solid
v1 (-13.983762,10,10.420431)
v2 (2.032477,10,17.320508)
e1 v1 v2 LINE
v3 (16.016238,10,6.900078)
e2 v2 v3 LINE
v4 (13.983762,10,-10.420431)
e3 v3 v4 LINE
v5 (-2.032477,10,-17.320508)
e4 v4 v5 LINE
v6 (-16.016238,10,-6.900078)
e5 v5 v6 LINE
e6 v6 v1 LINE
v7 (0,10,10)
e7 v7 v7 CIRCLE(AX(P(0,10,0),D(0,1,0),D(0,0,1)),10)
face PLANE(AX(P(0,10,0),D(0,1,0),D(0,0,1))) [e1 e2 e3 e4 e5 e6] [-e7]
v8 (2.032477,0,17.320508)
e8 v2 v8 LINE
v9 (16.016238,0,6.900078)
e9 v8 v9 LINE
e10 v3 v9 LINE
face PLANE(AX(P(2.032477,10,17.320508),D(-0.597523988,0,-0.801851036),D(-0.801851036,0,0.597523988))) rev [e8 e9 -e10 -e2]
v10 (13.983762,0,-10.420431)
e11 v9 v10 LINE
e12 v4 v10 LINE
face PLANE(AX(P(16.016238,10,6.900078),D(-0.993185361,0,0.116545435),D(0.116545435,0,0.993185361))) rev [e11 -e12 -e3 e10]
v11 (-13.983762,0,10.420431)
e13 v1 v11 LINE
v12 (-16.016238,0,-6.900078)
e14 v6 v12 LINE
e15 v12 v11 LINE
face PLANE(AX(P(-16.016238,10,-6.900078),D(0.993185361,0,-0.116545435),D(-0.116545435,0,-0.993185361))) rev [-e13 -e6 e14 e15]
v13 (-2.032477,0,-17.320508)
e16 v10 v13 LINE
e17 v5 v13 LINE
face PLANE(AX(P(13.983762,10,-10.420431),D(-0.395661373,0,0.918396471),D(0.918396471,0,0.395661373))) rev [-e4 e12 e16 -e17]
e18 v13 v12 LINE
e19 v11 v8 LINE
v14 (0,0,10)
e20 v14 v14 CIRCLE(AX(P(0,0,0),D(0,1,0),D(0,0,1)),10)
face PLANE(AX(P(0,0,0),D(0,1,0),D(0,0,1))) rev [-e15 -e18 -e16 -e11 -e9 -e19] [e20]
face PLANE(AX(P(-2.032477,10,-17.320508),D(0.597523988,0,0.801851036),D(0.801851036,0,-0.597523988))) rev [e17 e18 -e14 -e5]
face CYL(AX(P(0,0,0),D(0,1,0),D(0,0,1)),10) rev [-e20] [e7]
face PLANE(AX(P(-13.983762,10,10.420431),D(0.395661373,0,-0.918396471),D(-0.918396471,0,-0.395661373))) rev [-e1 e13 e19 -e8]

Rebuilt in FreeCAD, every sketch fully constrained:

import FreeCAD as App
import Part
import Sketcher

doc = App.newDocument("Part")
body = doc.addObject("PartDesign::Body", "Body")

# Sketch on XZ plane
sketch1 = doc.addObject("Sketcher::SketchObject", "Sketch")
body.addObject(sketch1)
sketch1.AttachmentSupport = (doc.XZ_Plane, [""])
sketch1.MapMode = "FlatFace"
sketch1.addGeometry(Part.LineSegment(App.Vector(-16, -7, 0), App.Vector(-14, 10, 0)), False)
sketch1.addGeometry(Part.LineSegment(App.Vector(-14, 10, 0), App.Vector(2, 17, 0)), False)
sketch1.addGeometry(Part.LineSegment(App.Vector(2, 17, 0), App.Vector(16, 7, 0)), False)
sketch1.addGeometry(Part.LineSegment(App.Vector(16, 7, 0), App.Vector(14, -10, 0)), False)
sketch1.addGeometry(Part.LineSegment(App.Vector(14, -10, 0), App.Vector(-2, -17, 0)), False)
sketch1.addGeometry(Part.LineSegment(App.Vector(-2, -17, 0), App.Vector(-16, -7, 0)), False)
sketch1.addConstraint(Sketcher.Constraint("Coincident", 0, 2, 1, 1))
sketch1.addConstraint(Sketcher.Constraint("Coincident", 1, 2, 2, 1))
sketch1.addConstraint(Sketcher.Constraint("Coincident", 2, 2, 3, 1))
sketch1.addConstraint(Sketcher.Constraint("Coincident", 3, 2, 4, 1))
sketch1.addConstraint(Sketcher.Constraint("Coincident", 4, 2, 5, 1))
sketch1.addConstraint(Sketcher.Constraint("Coincident", 5, 2, 0, 1))
sketch1.addConstraint(Sketcher.Constraint("Symmetric", 0, 2, 3, 2, -1, 1))
sketch1.addConstraint(Sketcher.Constraint("Symmetric", 1, 2, 4, 2, -1, 1))
sketch1.addConstraint(Sketcher.Constraint("Symmetric", 2, 2, 5, 2, -1, 1))
sketch1.addConstraint(Sketcher.Constraint("Equal", 0, 1))
sketch1.addConstraint(Sketcher.Constraint("Equal", 1, 2))
sketch1.addConstraint(Sketcher.Constraint("DistanceX", 0, 2, 2, 2, 30.0))
sketch1.addConstraint(Sketcher.Constraint("Distance", 0, 17.439351))
sketch1.addConstraint(Sketcher.Constraint("DistanceX", 0, 2, -1, 1, 13.983762))
sketch1.addConstraint(Sketcher.Constraint("DistanceY", -1, 1, 0, 2, 10.420431))
pad1 = doc.addObject("PartDesign::Pad", "Pad")
body.addObject(pad1)
pad1.Profile = sketch1
pad1.Length = 10
pad1.Reversed = True

# Sketch on XZ plane
sketch2 = doc.addObject("Sketcher::SketchObject", "Sketch001")
body.addObject(sketch2)
sketch2.AttachmentSupport = (doc.XZ_Plane, [""])
sketch2.MapMode = "FlatFace"
sketch2.AttachmentOffset = App.Placement(App.Vector(0, 0, -10), App.Rotation())
sketch2.addGeometry(Part.Circle(App.Vector(0, 0, 0), App.Vector(0, 0, 1), 10), False)
sketch2.addConstraint(Sketcher.Constraint("Coincident", 0, 3, -1, 1))
sketch2.addConstraint(Sketcher.Constraint("Diameter", 0, 20.0))
pocket1 = doc.addObject("PartDesign::Pocket", "Pocket")
body.addObject(pocket1)
pocket1.Profile = sketch2
pocket1.Length = 10
pocket1.Reversed = True

doc.recompute()
